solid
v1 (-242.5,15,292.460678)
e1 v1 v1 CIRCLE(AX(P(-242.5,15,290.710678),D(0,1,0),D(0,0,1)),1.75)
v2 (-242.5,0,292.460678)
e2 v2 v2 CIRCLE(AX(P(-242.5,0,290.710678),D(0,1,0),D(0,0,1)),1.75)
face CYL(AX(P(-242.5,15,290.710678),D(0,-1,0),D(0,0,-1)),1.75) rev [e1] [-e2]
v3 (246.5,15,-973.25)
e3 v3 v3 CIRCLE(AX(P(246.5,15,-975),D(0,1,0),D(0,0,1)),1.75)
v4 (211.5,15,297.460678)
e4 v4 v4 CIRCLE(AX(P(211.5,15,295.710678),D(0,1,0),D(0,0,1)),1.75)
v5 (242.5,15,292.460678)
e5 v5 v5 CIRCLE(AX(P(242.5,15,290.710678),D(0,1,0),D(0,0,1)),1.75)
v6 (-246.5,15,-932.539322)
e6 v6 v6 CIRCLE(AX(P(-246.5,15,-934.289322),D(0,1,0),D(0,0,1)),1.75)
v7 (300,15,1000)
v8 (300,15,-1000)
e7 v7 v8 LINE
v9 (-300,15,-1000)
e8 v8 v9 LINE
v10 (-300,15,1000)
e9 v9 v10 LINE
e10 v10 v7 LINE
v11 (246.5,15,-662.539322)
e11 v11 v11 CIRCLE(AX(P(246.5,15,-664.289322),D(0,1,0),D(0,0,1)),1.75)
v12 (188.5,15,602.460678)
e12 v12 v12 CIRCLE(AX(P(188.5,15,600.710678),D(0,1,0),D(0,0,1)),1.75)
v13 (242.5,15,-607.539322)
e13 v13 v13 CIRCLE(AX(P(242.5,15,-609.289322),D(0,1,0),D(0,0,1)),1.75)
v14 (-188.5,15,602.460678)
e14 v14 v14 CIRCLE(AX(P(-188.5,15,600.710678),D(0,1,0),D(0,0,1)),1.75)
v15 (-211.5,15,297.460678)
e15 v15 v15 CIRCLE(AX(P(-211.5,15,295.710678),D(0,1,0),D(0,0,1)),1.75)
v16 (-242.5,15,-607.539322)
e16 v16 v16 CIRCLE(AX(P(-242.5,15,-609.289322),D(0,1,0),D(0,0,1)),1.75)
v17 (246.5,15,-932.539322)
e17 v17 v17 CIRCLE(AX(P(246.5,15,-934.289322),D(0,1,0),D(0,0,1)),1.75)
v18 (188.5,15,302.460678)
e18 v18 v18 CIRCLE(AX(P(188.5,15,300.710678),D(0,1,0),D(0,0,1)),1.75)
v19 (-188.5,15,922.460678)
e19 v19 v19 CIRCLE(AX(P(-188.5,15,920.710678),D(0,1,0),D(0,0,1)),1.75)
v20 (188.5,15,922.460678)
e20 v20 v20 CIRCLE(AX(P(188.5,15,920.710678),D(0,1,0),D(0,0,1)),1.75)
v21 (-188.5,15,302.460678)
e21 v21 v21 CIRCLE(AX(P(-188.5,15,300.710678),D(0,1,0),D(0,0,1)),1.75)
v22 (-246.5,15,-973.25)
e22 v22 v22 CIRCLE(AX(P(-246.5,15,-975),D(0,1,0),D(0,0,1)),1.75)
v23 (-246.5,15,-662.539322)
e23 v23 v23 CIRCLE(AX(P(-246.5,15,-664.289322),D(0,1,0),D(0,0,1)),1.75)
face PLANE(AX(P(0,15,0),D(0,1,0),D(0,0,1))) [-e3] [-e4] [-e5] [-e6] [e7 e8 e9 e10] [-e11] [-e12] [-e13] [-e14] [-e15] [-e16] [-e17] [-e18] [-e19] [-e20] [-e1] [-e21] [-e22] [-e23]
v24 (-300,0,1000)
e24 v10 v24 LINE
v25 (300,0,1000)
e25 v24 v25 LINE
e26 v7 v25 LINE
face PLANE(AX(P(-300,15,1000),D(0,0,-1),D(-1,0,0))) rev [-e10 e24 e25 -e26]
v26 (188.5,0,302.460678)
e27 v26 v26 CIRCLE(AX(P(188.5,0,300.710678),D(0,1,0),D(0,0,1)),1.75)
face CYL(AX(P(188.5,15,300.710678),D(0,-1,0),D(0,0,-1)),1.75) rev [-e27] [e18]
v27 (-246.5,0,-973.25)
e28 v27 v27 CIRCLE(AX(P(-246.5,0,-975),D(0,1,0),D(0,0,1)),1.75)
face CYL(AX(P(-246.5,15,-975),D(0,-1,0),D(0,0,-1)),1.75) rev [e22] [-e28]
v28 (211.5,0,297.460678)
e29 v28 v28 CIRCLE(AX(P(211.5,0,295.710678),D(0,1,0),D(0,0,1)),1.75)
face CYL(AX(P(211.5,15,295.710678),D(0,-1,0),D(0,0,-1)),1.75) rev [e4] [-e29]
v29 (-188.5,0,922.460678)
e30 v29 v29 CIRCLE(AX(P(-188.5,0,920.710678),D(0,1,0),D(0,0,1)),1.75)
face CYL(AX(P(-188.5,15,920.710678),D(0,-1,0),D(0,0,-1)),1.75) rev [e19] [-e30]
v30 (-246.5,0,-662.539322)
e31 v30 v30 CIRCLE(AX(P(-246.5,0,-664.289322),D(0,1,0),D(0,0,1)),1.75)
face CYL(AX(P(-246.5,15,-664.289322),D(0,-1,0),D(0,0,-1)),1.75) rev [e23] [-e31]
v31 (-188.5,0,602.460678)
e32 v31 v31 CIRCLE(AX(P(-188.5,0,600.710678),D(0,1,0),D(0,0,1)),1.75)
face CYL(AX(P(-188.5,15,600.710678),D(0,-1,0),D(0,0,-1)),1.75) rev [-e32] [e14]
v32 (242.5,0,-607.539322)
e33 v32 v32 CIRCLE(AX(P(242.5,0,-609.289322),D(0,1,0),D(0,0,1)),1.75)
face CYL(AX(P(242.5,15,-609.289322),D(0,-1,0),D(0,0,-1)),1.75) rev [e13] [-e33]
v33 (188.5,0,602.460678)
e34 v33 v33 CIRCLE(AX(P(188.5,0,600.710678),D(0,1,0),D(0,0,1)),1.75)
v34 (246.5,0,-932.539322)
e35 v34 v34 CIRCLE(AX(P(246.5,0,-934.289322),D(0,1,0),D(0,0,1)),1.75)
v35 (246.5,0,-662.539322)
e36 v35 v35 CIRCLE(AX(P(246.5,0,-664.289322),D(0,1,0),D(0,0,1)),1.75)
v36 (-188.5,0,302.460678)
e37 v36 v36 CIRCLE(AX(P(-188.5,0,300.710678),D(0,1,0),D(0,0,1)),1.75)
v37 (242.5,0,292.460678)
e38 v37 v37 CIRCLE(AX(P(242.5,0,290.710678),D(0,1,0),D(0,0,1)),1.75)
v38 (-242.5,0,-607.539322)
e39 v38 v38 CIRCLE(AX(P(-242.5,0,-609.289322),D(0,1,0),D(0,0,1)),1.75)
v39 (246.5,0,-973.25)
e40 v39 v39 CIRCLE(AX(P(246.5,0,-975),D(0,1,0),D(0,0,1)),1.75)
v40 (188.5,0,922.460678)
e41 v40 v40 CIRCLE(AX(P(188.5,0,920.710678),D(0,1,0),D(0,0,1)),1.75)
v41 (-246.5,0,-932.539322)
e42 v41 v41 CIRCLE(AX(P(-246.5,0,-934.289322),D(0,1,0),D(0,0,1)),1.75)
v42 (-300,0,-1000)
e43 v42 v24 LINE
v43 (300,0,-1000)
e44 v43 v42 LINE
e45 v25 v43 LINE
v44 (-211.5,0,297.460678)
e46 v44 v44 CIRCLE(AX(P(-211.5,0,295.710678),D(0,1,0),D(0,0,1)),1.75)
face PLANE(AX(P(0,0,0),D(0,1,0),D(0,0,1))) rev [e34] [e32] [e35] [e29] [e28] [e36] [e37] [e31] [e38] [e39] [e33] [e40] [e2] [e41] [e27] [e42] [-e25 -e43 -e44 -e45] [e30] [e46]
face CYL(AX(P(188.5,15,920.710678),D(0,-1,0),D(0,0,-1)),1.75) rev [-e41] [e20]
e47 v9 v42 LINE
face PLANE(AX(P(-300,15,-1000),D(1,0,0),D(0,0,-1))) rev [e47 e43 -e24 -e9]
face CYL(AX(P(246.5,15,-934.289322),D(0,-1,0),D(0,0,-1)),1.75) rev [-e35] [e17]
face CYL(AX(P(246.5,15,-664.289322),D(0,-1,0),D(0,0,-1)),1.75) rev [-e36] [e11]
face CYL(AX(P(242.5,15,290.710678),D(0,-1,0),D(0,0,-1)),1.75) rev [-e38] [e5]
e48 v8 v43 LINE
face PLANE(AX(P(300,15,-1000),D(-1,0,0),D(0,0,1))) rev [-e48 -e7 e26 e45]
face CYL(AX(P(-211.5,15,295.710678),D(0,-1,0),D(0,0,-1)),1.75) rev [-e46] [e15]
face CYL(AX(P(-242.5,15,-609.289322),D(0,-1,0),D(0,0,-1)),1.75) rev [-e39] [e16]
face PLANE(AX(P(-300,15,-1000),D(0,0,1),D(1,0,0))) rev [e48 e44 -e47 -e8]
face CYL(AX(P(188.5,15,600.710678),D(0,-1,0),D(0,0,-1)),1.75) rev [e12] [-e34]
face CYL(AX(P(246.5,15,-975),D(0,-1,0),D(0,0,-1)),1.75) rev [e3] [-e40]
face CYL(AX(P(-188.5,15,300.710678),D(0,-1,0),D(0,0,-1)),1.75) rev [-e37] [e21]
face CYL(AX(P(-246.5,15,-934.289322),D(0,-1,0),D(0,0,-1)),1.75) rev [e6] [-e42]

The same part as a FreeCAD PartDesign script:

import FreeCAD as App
import Part
import Sketcher

doc = App.newDocument("Part")
body = doc.addObject("PartDesign::Body", "Body")

sketch1 = body.newObject("Sketcher::SketchObject", "Sketch")
sketch1.AttachmentSupport = (doc.getObject("XZ_Plane"), [""])
sketch1.MapMode = "FlatFace"
sketch1.addGeometry(Part.LineSegment(App.Vector(-300, -1000, 0), App.Vector(-300, 1000, 0)), False)
sketch1.addGeometry(Part.LineSegment(App.Vector(-300, 1000, 0), App.Vector(300, 1000, 0)), False)
sketch1.addGeometry(Part.LineSegment(App.Vector(300, 1000, 0), App.Vector(300, -1000, 0)), False)
sketch1.addGeometry(Part.LineSegment(App.Vector(300, -1000, 0), App.Vector(-300, -1000, 0)), False)
sketch1.addGeometry(Part.Circle(App.Vector(-188.5, 920.7, 0), App.Vector(0, 0, 1), 1.8), False)
sketch1.addGeometry(Part.Circle(App.Vector(-188.5, 600.7, 0), App.Vector(0, 0, 1), 1.8), False)
sketch1.addGeometry(Part.Circle(App.Vector(-242.5, 290.7, 0), App.Vector(0, 0, 1), 1.8), False)
sketch1.addGeometry(Part.Circle(App.Vector(-211.5, 295.7, 0), App.Vector(0, 0, 1), 1.8), False)
sketch1.addGeometry(Part.Circle(App.Vector(-188.5, 300.7, 0), App.Vector(0, 0, 1), 1.8), False)
sketch1.addGeometry(Part.Circle(App.Vector(188.5, 920.7, 0), App.Vector(0, 0, 1), 1.8), False)
sketch1.addGeometry(Part.Circle(App.Vector(188.5, 600.7, 0), App.Vector(0, 0, 1), 1.8), False)
sketch1.addGeometry(Part.Circle(App.Vector(188.5, 300.7, 0), App.Vector(0, 0, 1), 1.8), False)
sketch1.addGeometry(Part.Circle(App.Vector(211.5, 295.7, 0), App.Vector(0, 0, 1), 1.8), False)
sketch1.addGeometry(Part.Circle(App.Vector(242.5, 290.7, 0), App.Vector(0, 0, 1), 1.8), False)
sketch1.addGeometry(Part.Circle(App.Vector(-242.5, -609.3, 0), App.Vector(0, 0, 1), 1.8), False)
sketch1.addGeometry(Part.Circle(App.Vector(-246.5, -664.3, 0), App.Vector(0, 0, 1), 1.8), False)
sketch1.addGeometry(Part.Circle(App.Vector(-246.5, -934.3, 0), App.Vector(0, 0, 1), 1.8), False)
sketch1.addGeometry(Part.Circle(App.Vector(-246.5, -975, 0), App.Vector(0, 0, 1), 1.8), False)
sketch1.addGeometry(Part.Circle(App.Vector(242.5, -609.3, 0), App.Vector(0, 0, 1), 1.8), False)
sketch1.addGeometry(Part.Circle(App.Vector(246.5, -664.3, 0), App.Vector(0, 0, 1), 1.8), False)
sketch1.addGeometry(Part.Circle(App.Vector(246.5, -934.3, 0), App.Vector(0, 0, 1), 1.8), False)
sketch1.addGeometry(Part.Circle(App.Vector(246.5, -975, 0), App.Vector(0, 0, 1), 1.8), False)
sketch1.addConstraint(Sketcher.Constraint("Coincident", 0, 2, 1, 1))
sketch1.addConstraint(Sketcher.Constraint("Coincident", 1, 2, 2, 1))
sketch1.addConstraint(Sketcher.Constraint("Coincident", 2, 2, 3, 1))
sketch1.addConstraint(Sketcher.Constraint("Coincident", 3, 2, 0, 1))
sketch1.addConstraint(Sketcher.Constraint("Vertical", 0))
sketch1.addConstraint(Sketcher.Constraint("Horizontal", 1))
sketch1.addConstraint(Sketcher.Constraint("Vertical", 2))
sketch1.addConstraint(Sketcher.Constraint("Horizontal", 3))
sketch1.addConstraint(Sketcher.Constraint("Equal", 4, 5))
sketch1.addConstraint(Sketcher.Constraint("Equal", 5, 6))
sketch1.addConstraint(Sketcher.Constraint("Equal", 6, 7))
sketch1.addConstraint(Sketcher.Constraint("Equal", 7, 8))
sketch1.addConstraint(Sketcher.Constraint("Equal", 8, 9))
sketch1.addConstraint(Sketcher.Constraint("Equal", 9, 10))
sketch1.addConstraint(Sketcher.Constraint("Equal", 10, 11))
sketch1.addConstraint(Sketcher.Constraint("Equal", 11, 12))
sketch1.addConstraint(Sketcher.Constraint("Equal", 12, 13))
sketch1.addConstraint(Sketcher.Constraint("Equal", 13, 14))
sketch1.addConstraint(Sketcher.Constraint("Equal", 14, 15))
sketch1.addConstraint(Sketcher.Constraint("Equal", 15, 16))
sketch1.addConstraint(Sketcher.Constraint("Equal", 16, 17))
sketch1.addConstraint(Sketcher.Constraint("Equal", 17, 18))
sketch1.addConstraint(Sketcher.Constraint("Equal", 18, 19))
sketch1.addConstraint(Sketcher.Constraint("Equal", 19, 20))
sketch1.addConstraint(Sketcher.Constraint("Equal", 20, 21))
sketch1.addConstraint(Sketcher.Constraint("Symmetric", 0, 2, 2, 2, -1, 1))
sketch1.addConstraint(Sketcher.Constraint("Symmetric", 4, 3, 9, 3, -2))
sketch1.addConstraint(Sketcher.Constraint("Symmetric", 5, 3, 10, 3, -2))
sketch1.addConstraint(Sketcher.Constraint("Symmetric", 8, 3, 11, 3, -2))
sketch1.addConstraint(Sketcher.Constraint("Symmetric", 7, 3, 12, 3, -2))
sketch1.addConstraint(Sketcher.Constraint("Symmetric", 6, 3, 13, 3, -2))
sketch1.addConstraint(Sketcher.Constraint("Symmetric", 14, 3, 18, 3, -2))
sketch1.addConstraint(Sketcher.Constraint("Symmetric", 15, 3, 19, 3, -2))
sketch1.addConstraint(Sketcher.Constraint("Symmetric", 16, 3, 20, 3, -2))
sketch1.addConstraint(Sketcher.Constraint("Symmetric", 17, 3, 21, 3, -2))
sketch1.addConstraint(Sketcher.Constraint("Vertical", 4, 3, 5, 3))
sketch1.addConstraint(Sketcher.Constraint("Vertical", 5, 3, 8, 3))
sketch1.addConstraint(Sketcher.Constraint("Vertical", 6, 3, 14, 3))
sketch1.addConstraint(Sketcher.Constraint("Vertical", 15, 3, 16, 3))
sketch1.addConstraint(Sketcher.Constraint("Vertical", 16, 3, 17, 3))
sketch1.addConstraint(Sketcher.Constraint("Diameter", 4, 3.5))
sketch1.addConstraint(Sketcher.Constraint("DistanceX", 1, 1, 1, 2, 600.0))
sketch1.addConstraint(Sketcher.Constraint("DistanceY", 0, 1, 0, 2, 2000.0))
sketch1.addConstraint(Sketcher.Constraint("DistanceY", 17, 3, -1, 1, 975.0))
sketch1.addConstraint(Sketcher.Constraint("DistanceY", 5, 3, 4, 3, 320.0))
sketch1.addConstraint(Sketcher.Constraint("DistanceX", 6, 3, 5, 3, 54.0))
sketch1.addConstraint(Sketcher.Constraint("DistanceY", 6, 3, 5, 3, 310.0))
sketch1.addConstraint(Sketcher.Constraint("DistanceX", 6, 3, 7, 3, 31.0))
sketch1.addConstraint(Sketcher.Constraint("DistanceY", 6, 3, 7, 3, 5.0))
sketch1.addConstraint(Sketcher.Constraint("DistanceY", 7, 3, 8, 3, 5.0))
sketch1.addConstraint(Sketcher.Constraint("DistanceX", 4, 3, 9, 3, 377.0))
sketch1.addConstraint(Sketcher.Constraint("DistanceY", 14, 3, 6, 3, 900.0))
sketch1.addConstraint(Sketcher.Constraint("DistanceX", 15, 3, 14, 3, 4.0))
sketch1.addConstraint(Sketcher.Constraint("DistanceY", 15, 3, 14, 3, 55.0))
sketch1.addConstraint(Sketcher.Constraint("DistanceY", 16, 3, 15, 3, 270.0))
sketch1.addConstraint(Sketcher.Constraint("DistanceY", -1, 1, 4, 3, 920.710678))
pad1 = body.newObject("PartDesign::Pad", "Pad")
pad1.Profile = sketch1
pad1.Length = 15
pad1.Reversed = True

doc.recompute()
